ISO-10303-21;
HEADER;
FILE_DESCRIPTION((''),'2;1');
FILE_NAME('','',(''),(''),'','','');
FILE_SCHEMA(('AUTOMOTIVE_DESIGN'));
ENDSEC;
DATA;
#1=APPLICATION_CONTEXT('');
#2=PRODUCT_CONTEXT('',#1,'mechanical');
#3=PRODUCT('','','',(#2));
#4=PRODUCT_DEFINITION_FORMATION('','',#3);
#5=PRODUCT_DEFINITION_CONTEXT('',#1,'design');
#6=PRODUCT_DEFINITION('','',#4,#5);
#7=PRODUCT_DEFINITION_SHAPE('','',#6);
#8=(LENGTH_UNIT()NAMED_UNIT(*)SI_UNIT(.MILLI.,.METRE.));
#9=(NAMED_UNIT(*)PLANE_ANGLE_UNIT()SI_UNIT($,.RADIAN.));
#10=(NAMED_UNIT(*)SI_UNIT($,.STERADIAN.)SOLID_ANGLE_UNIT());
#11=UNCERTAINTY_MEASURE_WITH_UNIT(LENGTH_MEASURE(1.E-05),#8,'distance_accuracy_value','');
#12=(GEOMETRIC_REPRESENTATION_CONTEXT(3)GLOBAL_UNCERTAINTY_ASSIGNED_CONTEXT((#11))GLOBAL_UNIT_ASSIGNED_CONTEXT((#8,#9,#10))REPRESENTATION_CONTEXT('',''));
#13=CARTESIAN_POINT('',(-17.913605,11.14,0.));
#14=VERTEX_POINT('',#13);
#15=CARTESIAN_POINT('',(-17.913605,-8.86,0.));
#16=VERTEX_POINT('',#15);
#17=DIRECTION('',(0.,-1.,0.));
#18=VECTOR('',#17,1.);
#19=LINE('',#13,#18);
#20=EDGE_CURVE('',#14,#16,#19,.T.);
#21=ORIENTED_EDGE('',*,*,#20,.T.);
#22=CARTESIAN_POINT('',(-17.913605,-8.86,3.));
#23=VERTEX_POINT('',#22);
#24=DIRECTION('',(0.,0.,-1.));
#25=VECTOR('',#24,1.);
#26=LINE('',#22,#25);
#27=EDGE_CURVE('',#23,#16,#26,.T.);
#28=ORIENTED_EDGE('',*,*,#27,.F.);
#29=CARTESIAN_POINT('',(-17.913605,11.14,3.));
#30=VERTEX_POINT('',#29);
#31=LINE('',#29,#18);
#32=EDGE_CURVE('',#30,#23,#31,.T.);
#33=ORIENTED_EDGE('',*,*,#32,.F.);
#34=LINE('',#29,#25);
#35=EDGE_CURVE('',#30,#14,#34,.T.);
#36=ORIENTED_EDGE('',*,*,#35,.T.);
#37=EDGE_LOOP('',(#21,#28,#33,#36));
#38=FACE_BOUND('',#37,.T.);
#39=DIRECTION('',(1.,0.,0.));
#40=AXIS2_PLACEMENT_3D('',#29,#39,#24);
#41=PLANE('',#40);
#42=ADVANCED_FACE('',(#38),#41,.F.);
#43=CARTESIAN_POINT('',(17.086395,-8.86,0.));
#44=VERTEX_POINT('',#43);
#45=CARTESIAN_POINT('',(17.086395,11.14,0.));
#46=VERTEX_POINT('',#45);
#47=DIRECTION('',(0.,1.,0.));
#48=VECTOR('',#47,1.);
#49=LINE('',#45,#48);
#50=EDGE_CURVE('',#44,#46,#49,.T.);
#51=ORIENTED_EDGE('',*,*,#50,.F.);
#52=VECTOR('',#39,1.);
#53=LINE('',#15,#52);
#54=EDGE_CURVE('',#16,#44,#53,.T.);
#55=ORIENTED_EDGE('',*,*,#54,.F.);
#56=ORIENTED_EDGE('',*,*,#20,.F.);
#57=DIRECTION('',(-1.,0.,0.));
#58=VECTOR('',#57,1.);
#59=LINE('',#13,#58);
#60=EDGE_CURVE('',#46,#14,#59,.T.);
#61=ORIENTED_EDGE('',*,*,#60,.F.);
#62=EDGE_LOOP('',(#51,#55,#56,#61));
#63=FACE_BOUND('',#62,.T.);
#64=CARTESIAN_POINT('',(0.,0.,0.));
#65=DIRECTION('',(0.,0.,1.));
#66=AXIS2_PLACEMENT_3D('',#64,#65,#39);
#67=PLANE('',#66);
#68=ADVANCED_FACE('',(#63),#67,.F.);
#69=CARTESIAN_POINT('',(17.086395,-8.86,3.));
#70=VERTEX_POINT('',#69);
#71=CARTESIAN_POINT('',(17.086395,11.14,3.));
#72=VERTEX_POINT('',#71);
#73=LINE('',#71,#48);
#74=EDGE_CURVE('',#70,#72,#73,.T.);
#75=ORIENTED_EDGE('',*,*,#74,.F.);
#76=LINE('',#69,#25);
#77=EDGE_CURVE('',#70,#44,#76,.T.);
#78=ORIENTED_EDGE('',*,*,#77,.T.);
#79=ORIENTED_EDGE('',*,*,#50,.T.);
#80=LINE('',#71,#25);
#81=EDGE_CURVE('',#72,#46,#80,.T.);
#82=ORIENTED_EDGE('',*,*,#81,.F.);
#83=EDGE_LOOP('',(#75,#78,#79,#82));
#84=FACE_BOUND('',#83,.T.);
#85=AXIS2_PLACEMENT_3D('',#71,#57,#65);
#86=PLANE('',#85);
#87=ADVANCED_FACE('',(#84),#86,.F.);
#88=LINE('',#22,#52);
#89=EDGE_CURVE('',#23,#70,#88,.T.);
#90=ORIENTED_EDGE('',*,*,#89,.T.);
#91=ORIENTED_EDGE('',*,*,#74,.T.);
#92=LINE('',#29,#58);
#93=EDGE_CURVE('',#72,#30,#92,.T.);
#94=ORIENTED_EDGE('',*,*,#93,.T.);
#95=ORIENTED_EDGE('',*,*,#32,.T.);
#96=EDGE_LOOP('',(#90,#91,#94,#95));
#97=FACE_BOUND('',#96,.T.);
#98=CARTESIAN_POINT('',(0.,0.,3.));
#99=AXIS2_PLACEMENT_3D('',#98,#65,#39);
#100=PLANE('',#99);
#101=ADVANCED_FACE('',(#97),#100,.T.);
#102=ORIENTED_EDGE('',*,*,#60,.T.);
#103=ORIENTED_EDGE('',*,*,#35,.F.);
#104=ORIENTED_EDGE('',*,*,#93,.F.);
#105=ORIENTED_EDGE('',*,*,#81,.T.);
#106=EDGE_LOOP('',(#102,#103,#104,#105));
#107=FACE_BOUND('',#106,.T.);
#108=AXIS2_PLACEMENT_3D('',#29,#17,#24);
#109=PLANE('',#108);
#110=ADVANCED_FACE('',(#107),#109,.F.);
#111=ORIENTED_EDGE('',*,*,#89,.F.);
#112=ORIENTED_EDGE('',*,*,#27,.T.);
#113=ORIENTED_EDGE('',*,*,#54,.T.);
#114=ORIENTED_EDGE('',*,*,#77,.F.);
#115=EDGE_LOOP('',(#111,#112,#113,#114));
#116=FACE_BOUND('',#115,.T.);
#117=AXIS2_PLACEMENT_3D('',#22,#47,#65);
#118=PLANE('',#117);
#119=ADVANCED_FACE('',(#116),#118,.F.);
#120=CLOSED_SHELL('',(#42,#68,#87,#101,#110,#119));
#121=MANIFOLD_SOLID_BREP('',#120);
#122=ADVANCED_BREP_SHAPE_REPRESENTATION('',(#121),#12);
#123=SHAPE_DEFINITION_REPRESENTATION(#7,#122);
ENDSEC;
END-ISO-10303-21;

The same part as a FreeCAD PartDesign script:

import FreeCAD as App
import Part
import Sketcher

V = App.Vector

doc = App.newDocument("Part")
body = doc.addObject("PartDesign::Body", "Body")

# Sketch on XY plane
sketch1 = body.newObject("Sketcher::SketchObject", "Sketch")
sketch1.AttachmentSupport = (doc.getObject("XY_Plane"), [""])
sketch1.MapMode = "FlatFace"
sketch1.addGeometry(Part.LineSegment(V(-18, 11, 0), V(-18, -9, 0)), False)
sketch1.addGeometry(Part.LineSegment(V(-18, -9, 0), V(17, -9, 0)), False)
sketch1.addGeometry(Part.LineSegment(V(17, -9, 0), V(17, 11, 0)), False)
sketch1.addGeometry(Part.LineSegment(V(17, 11, 0), V(-18, 11, 0)), False)
sketch1.addConstraint(Sketcher.Constraint("Coincident", 0, 2, 1, 1))
sketch1.addConstraint(Sketcher.Constraint("Coincident", 1, 2, 2, 1))
sketch1.addConstraint(Sketcher.Constraint("Coincident", 2, 2, 3, 1))
sketch1.addConstraint(Sketcher.Constraint("Coincident", 3, 2, 0, 1))
sketch1.addConstraint(Sketcher.Constraint("Vertical", 0))
sketch1.addConstraint(Sketcher.Constraint("Horizontal", 1))
sketch1.addConstraint(Sketcher.Constraint("Vertical", 2))
sketch1.addConstraint(Sketcher.Constraint("Horizontal", 3))
sketch1.addConstraint(Sketcher.Constraint("DistanceX", 1, 1, 1, 2, 35.0))
sketch1.addConstraint(Sketcher.Constraint("DistanceY", 0, 2, 0, 1, 20.0))
sketch1.addConstraint(Sketcher.Constraint("DistanceY", 0, 2, -1, 1, 8.86))
sketch1.addConstraint(Sketcher.Constraint("DistanceX", 0, 2, -1, 1, 17.913605))
pad1 = body.newObject("PartDesign::Pad", "Pad")
pad1.Profile = sketch1
pad1.Length = 3

doc.recompute()
